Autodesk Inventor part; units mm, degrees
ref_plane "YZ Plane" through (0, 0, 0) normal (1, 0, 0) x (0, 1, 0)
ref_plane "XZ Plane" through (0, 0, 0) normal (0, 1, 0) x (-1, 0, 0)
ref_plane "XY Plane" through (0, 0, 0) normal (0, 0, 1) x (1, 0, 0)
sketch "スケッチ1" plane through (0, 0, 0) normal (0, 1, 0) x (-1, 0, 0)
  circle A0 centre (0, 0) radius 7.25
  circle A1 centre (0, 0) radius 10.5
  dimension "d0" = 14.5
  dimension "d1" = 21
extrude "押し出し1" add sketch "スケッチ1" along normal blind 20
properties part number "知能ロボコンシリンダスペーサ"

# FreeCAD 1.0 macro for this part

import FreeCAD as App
import Part
import Sketcher

V = App.Vector
Q = App.Units.Quantity

doc = App.newDocument("Part")
params = doc.addObject("Spreadsheet::Sheet", "Params")
for row, (alias, value) in enumerate([
    ("sketch1_diameter", "21 mm"),
    ("sketch1_diameter2", "14.5 mm"),
    ("pad1_length", "20 mm"),
], start=1):
    params.set(f"A{row}", alias)
    params.set(f"B{row}", "=" + value)
    params.setAlias(f"B{row}", alias)

body = doc.addObject("PartDesign::Body", "Body")

# Sketch on XZ plane
sketch1 = body.newObject("Sketcher::SketchObject", "Sketch")
sketch1.AttachmentSupport = (doc.getObject("XZ_Plane"), [""])
sketch1.MapMode = "FlatFace"
sketch1.addGeometry(Part.Circle(V(0, 0, 0), V(0, 0, 1), 10), False)
sketch1.addGeometry(Part.Circle(V(0, 0, 0), V(0, 0, 1), 7), False)
sketch1.addConstraint(Sketcher.Constraint("Coincident", 0, 3, -1, 1))
sketch1.addConstraint(Sketcher.Constraint("Coincident", 1, 3, -1, 1))
sketch1.addConstraint(Sketcher.Constraint("Diameter", 0, Q("21 mm")))
sketch1.addConstraint(Sketcher.Constraint("Diameter", 1, Q("14.5 mm")))
sketch1.setExpression("Constraints[2]", "Params.sketch1_diameter")
sketch1.setExpression("Constraints[3]", "Params.sketch1_diameter2")
pad1 = body.newObject("PartDesign::Pad", "Pad")
pad1.Profile = sketch1
pad1.setExpression("Length", "Params.pad1_length")
pad1.Reversed = True

doc.recompute()
